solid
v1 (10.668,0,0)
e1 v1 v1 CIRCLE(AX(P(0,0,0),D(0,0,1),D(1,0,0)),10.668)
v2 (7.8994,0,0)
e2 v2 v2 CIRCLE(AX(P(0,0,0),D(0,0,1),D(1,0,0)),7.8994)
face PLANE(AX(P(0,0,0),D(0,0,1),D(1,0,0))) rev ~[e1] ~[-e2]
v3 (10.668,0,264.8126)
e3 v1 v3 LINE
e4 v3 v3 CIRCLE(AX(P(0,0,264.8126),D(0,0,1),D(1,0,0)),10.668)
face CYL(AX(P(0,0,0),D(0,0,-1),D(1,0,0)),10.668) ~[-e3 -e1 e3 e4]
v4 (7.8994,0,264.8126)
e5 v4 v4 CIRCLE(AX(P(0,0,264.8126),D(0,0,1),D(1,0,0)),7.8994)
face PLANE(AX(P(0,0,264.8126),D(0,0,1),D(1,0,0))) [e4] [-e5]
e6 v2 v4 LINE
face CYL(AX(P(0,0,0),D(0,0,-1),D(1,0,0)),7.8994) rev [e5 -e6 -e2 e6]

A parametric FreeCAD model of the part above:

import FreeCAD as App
import Part
import Sketcher

V = App.Vector
Q = App.Units.Quantity

doc = App.newDocument("Part")
body = doc.addObject("PartDesign::Body", "Body")

# Sketch on XY plane
sketch1 = body.newObject("Sketcher::SketchObject", "Sketch")
sketch1.AttachmentSupport = (doc.getObject("XY_Plane"), [""])
sketch1.MapMode = "FlatFace"
sketch1.addGeometry(Part.Circle(V(0, 0, 0), V(0, 0, 1), 11), False)
sketch1.addGeometry(Part.Circle(V(0, 0, 0), V(0, 0, 1), 8), False)
sketch1.addConstraint(Sketcher.Constraint("Coincident", 0, 3, -1, 1))
sketch1.addConstraint(Sketcher.Constraint("Coincident", 1, 3, -1, 1))
sketch1.addConstraint(Sketcher.Constraint("Diameter", 0, Q("0.84 in")))
sketch1.addConstraint(Sketcher.Constraint("Diameter", 1, Q("0.622 in")))
pad1 = body.newObject("PartDesign::Pad", "Pad")
pad1.Profile = sketch1
pad1.Length = Q("10.4256929 in")

doc.recompute()
